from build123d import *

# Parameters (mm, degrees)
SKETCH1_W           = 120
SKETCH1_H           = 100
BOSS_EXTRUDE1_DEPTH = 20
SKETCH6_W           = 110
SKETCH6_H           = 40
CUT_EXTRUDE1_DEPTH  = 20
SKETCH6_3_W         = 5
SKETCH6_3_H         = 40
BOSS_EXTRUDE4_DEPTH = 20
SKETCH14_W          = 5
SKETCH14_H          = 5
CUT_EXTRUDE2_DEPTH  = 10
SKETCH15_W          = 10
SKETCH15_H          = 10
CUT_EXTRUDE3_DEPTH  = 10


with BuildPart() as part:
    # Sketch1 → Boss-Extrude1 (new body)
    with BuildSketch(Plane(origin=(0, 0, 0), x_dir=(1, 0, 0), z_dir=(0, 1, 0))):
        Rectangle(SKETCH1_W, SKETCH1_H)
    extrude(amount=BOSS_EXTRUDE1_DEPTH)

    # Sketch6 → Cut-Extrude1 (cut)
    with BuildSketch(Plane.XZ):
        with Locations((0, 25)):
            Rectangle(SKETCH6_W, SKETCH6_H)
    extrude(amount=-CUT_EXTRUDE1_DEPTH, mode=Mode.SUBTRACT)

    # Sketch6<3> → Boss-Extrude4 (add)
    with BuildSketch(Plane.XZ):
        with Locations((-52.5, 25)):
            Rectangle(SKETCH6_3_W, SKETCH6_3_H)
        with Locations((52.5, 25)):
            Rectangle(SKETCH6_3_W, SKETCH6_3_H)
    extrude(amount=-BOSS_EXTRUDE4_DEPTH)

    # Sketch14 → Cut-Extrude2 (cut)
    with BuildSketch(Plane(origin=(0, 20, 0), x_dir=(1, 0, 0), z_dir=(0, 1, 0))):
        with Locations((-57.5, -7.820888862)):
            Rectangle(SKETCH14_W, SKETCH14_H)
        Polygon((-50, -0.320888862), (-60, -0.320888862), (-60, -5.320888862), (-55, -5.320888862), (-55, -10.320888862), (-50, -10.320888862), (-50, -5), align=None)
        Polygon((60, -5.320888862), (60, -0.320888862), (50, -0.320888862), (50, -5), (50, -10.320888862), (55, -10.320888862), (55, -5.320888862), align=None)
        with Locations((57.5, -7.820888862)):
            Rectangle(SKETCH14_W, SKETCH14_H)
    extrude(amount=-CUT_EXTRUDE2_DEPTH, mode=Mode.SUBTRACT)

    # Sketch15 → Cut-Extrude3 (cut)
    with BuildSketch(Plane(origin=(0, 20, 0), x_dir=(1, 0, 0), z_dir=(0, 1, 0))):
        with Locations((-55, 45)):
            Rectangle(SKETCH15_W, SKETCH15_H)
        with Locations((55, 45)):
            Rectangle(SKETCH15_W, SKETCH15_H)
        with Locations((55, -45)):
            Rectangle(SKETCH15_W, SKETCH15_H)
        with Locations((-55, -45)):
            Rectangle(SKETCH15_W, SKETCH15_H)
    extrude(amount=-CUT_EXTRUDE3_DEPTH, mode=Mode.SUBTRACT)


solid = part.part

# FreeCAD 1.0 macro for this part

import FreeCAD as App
import Part
import Sketcher

V = App.Vector


def add_polygon(sketch, points):
    """Adds a closed chain of lines whose ends are joined by coincident constraints."""
    first, n = sketch.GeometryCount, len(points)
    for a, b in zip(points, points[1:] + points[:1]):
        sketch.addGeometry(Part.LineSegment(App.Vector(*a, 0), App.Vector(*b, 0)), False)
    for i in range(n):
        sketch.addConstraint(Sketcher.Constraint("Coincident", first + i, 2, first + (i + 1) % n, 1))

doc = App.newDocument("Part")
body = doc.addObject("PartDesign::Body", "Body")

# Sketch on XZ plane
sketch1 = doc.addObject("Sketcher::SketchObject", "Sketch")
body.addObject(sketch1)
sketch1.AttachmentSupport = (doc.XZ_Plane, [""])
sketch1.MapMode = "FlatFace"
add_polygon(sketch1, [(-60, -50), (-60, 50), (60, 50), (60, -50)])  # lines 0-3
sketch1.addConstraint(Sketcher.Constraint("Vertical", 0))
sketch1.addConstraint(Sketcher.Constraint("Horizontal", 1))
sketch1.addConstraint(Sketcher.Constraint("Vertical", 2))
sketch1.addConstraint(Sketcher.Constraint("Horizontal", 3))
sketch1.addConstraint(Sketcher.Constraint("Symmetric", 0, 2, 2, 2, -1, 1))
sketch1.addConstraint(Sketcher.Constraint("DistanceX", 1, 1, 1, 2, 120.0))
sketch1.addConstraint(Sketcher.Constraint("DistanceY", 0, 1, 0, 2, 100.0))
pad1 = doc.addObject("PartDesign::Pad", "Pad")
body.addObject(pad1)
pad1.Profile = sketch1
pad1.Length = 20
pad1.Reversed = True

# Sketch on XZ plane
sketch2 = doc.addObject("Sketcher::SketchObject", "Sketch001")
body.addObject(sketch2)
sketch2.AttachmentSupport = (doc.XZ_Plane, [""])
sketch2.MapMode = "FlatFace"
add_polygon(sketch2, [(-55, 45), (-55, 5), (55, 5), (55, 45)])  # lines 0-3
sketch2.addConstraint(Sketcher.Constraint("Vertical", 0))
sketch2.addConstraint(Sketcher.Constraint("Horizontal", 1))
sketch2.addConstraint(Sketcher.Constraint("Vertical", 2))
sketch2.addConstraint(Sketcher.Constraint("Horizontal", 3))
sketch2.addConstraint(Sketcher.Constraint("DistanceX", 1, 1, 1, 2, 110.0))
sketch2.addConstraint(Sketcher.Constraint("DistanceY", 0, 2, 0, 1, 40.0))
sketch2.addConstraint(Sketcher.Constraint("DistanceX", 0, 2, -1, 1, 55.0))
sketch2.addConstraint(Sketcher.Constraint("DistanceY", -1, 1, 0, 2, 5.0))
pocket1 = doc.addObject("PartDesign::Pocket", "Pocket")
body.addObject(pocket1)
pocket1.Profile = sketch2
pocket1.Length = 20

# Sketch on XZ plane
sketch3 = doc.addObject("Sketcher::SketchObject", "Sketch002")
body.addObject(sketch3)
sketch3.AttachmentSupport = (doc.XZ_Plane, [""])
sketch3.MapMode = "FlatFace"
add_polygon(sketch3, [(-55, 45), (-55, 5), (-50, 5), (-50, 45)])  # lines 0-3
add_polygon(sketch3, [(50, 45), (50, 5), (55, 5), (55, 45)])  # lines 4-7
sketch3.addConstraint(Sketcher.Constraint("Vertical", 0))
sketch3.addConstraint(Sketcher.Constraint("Horizontal", 1))
sketch3.addConstraint(Sketcher.Constraint("Vertical", 2))
sketch3.addConstraint(Sketcher.Constraint("Horizontal", 3))
sketch3.addConstraint(Sketcher.Constraint("Vertical", 4))
sketch3.addConstraint(Sketcher.Constraint("Horizontal", 5))
sketch3.addConstraint(Sketcher.Constraint("Vertical", 6))
sketch3.addConstraint(Sketcher.Constraint("Horizontal", 7))
sketch3.addConstraint(Sketcher.Constraint("Symmetric", 1, 2, 4, 2, -2))
sketch3.addConstraint(Sketcher.Constraint("Symmetric", 3, 2, 6, 2, -2))
sketch3.addConstraint(Sketcher.Constraint("DistanceX", 1, 1, 1, 2, 5.0))
sketch3.addConstraint(Sketcher.Constraint("DistanceY", 0, 2, 0, 1, 40.0))
sketch3.addConstraint(Sketcher.Constraint("DistanceX", 0, 2, -1, 1, 55.0))
sketch3.addConstraint(Sketcher.Constraint("DistanceY", -1, 1, 0, 2, 5.0))
pad2 = doc.addObject("PartDesign::Pad", "Pad001")
body.addObject(pad2)
pad2.Profile = sketch3
pad2.Length = 20
pad2.Reversed = True

# Sketch on XZ plane
sketch4 = doc.addObject("Sketcher::SketchObject", "Sketch003")
body.addObject(sketch4)
sketch4.AttachmentSupport = (doc.XZ_Plane, [""])
sketch4.MapMode = "FlatFace"
sketch4.AttachmentOffset = App.Placement(V(0, 0, -20), App.Rotation())
add_polygon(sketch4, [(-60, 10.320889), (-50, 10.320889), (-50, 0.320889), (-60, 0.320889)])  # lines 0-3
add_polygon(sketch4, [(60, 0.320889), (50, 0.320889), (50, 10.320889), (60, 10.320889)])  # lines 4-7
sketch4.addConstraint(Sketcher.Constraint("Horizontal", 0))
sketch4.addConstraint(Sketcher.Constraint("Vertical", 1))
sketch4.addConstraint(Sketcher.Constraint("Horizontal", 2))
sketch4.addConstraint(Sketcher.Constraint("Vertical", 3))
sketch4.addConstraint(Sketcher.Constraint("Horizontal", 4))
sketch4.addConstraint(Sketcher.Constraint("Vertical", 5))
sketch4.addConstraint(Sketcher.Constraint("Horizontal", 6))
sketch4.addConstraint(Sketcher.Constraint("Vertical", 7))
sketch4.addConstraint(Sketcher.Constraint("Symmetric", 1, 2, 4, 2, -2))
sketch4.addConstraint(Sketcher.Constraint("Symmetric", 3, 2, 6, 2, -2))
sketch4.addConstraint(Sketcher.Constraint("Equal", 6, 1))
sketch4.addConstraint(Sketcher.Constraint("DistanceX", 0, 1, 0, 2, 10.0))
sketch4.addConstraint(Sketcher.Constraint("DistanceX", 0, 2, -1, 1, 50.0))
sketch4.addConstraint(Sketcher.Constraint("DistanceY", -1, 1, 0, 2, 10.320889))
pocket2 = doc.addObject("PartDesign::Pocket", "Pocket001")
body.addObject(pocket2)
pocket2.Profile = sketch4
pocket2.Length = 10
pocket2.Reversed = True

# Sketch on XZ plane
sketch5 = doc.addObject("Sketcher::SketchObject", "Sketch004")
body.addObject(sketch5)
sketch5.AttachmentSupport = (doc.XZ_Plane, [""])
sketch5.MapMode = "FlatFace"
sketch5.AttachmentOffset = App.Placement(V(0, 0, -20), App.Rotation())
add_polygon(sketch5, [(-60, -50), (-60, -40), (-50, -40), (-50, -50)])  # lines 0-3
add_polygon(sketch5, [(50, -50), (50, -40), (60, -40), (60, -50)])  # lines 4-7
add_polygon(sketch5, [(50, 40), (50, 50), (60, 50), (60, 40)])  # lines 8-11
add_polygon(sketch5, [(-60, 40), (-60, 50), (-50, 50), (-50, 40)])  # lines 12-15
sketch5.addConstraint(Sketcher.Constraint("Vertical", 0))
sketch5.addConstraint(Sketcher.Constraint("Horizontal", 1))
sketch5.addConstraint(Sketcher.Constraint("Vertical", 2))
sketch5.addConstraint(Sketcher.Constraint("Horizontal", 3))
sketch5.addConstraint(Sketcher.Constraint("Vertical", 4))
sketch5.addConstraint(Sketcher.Constraint("Horizontal", 5))
sketch5.addConstraint(Sketcher.Constraint("Vertical", 6))
sketch5.addConstraint(Sketcher.Constraint("Horizontal", 7))
sketch5.addConstraint(Sketcher.Constraint("Vertical", 8))
sketch5.addConstraint(Sketcher.Constraint("Horizontal", 9))
sketch5.addConstraint(Sketcher.Constraint("Vertical", 10))
sketch5.addConstraint(Sketcher.Constraint("Horizontal", 11))
sketch5.addConstraint(Sketcher.Constraint("Vertical", 12))
sketch5.addConstraint(Sketcher.Constraint("Horizontal", 13))
sketch5.addConstraint(Sketcher.Constraint("Vertical", 14))
sketch5.addConstraint(Sketcher.Constraint("Horizontal", 15))
sketch5.addConstraint(Sketcher.Constraint("Symmetric", 2, 2, 8, 2, -1, 1))
sketch5.addConstraint(Sketcher.Constraint("Symmetric", 0, 2, 10, 2, -1, 1))
sketch5.addConstraint(Sketcher.Constraint("Symmetric", 6, 2, 12, 2, -1, 1))
sketch5.addConstraint(Sketcher.Constraint("Symmetric", 4, 2, 14, 2, -1, 1))
sketch5.addConstraint(Sketcher.Constraint("Symmetric", 1, 2, 4, 2, -2))
sketch5.addConstraint(Sketcher.Constraint("Symmetric", 3, 2, 6, 2, -2))
sketch5.addConstraint(Sketcher.Constraint("Equal", 15, 0))
sketch5.addConstraint(Sketcher.Constraint("DistanceX", 1, 1, 1, 2, 10.0))
sketch5.addConstraint(Sketcher.Constraint("DistanceX", 0, 2, -1, 1, 60.0))
sketch5.addConstraint(Sketcher.Constraint("DistanceY", 0, 2, -1, 1, 40.0))
pocket3 = doc.addObject("PartDesign::Pocket", "Pocket002")
body.addObject(pocket3)
pocket3.Profile = sketch5
pocket3.Length = 10
pocket3.Reversed = True

doc.recompute()
